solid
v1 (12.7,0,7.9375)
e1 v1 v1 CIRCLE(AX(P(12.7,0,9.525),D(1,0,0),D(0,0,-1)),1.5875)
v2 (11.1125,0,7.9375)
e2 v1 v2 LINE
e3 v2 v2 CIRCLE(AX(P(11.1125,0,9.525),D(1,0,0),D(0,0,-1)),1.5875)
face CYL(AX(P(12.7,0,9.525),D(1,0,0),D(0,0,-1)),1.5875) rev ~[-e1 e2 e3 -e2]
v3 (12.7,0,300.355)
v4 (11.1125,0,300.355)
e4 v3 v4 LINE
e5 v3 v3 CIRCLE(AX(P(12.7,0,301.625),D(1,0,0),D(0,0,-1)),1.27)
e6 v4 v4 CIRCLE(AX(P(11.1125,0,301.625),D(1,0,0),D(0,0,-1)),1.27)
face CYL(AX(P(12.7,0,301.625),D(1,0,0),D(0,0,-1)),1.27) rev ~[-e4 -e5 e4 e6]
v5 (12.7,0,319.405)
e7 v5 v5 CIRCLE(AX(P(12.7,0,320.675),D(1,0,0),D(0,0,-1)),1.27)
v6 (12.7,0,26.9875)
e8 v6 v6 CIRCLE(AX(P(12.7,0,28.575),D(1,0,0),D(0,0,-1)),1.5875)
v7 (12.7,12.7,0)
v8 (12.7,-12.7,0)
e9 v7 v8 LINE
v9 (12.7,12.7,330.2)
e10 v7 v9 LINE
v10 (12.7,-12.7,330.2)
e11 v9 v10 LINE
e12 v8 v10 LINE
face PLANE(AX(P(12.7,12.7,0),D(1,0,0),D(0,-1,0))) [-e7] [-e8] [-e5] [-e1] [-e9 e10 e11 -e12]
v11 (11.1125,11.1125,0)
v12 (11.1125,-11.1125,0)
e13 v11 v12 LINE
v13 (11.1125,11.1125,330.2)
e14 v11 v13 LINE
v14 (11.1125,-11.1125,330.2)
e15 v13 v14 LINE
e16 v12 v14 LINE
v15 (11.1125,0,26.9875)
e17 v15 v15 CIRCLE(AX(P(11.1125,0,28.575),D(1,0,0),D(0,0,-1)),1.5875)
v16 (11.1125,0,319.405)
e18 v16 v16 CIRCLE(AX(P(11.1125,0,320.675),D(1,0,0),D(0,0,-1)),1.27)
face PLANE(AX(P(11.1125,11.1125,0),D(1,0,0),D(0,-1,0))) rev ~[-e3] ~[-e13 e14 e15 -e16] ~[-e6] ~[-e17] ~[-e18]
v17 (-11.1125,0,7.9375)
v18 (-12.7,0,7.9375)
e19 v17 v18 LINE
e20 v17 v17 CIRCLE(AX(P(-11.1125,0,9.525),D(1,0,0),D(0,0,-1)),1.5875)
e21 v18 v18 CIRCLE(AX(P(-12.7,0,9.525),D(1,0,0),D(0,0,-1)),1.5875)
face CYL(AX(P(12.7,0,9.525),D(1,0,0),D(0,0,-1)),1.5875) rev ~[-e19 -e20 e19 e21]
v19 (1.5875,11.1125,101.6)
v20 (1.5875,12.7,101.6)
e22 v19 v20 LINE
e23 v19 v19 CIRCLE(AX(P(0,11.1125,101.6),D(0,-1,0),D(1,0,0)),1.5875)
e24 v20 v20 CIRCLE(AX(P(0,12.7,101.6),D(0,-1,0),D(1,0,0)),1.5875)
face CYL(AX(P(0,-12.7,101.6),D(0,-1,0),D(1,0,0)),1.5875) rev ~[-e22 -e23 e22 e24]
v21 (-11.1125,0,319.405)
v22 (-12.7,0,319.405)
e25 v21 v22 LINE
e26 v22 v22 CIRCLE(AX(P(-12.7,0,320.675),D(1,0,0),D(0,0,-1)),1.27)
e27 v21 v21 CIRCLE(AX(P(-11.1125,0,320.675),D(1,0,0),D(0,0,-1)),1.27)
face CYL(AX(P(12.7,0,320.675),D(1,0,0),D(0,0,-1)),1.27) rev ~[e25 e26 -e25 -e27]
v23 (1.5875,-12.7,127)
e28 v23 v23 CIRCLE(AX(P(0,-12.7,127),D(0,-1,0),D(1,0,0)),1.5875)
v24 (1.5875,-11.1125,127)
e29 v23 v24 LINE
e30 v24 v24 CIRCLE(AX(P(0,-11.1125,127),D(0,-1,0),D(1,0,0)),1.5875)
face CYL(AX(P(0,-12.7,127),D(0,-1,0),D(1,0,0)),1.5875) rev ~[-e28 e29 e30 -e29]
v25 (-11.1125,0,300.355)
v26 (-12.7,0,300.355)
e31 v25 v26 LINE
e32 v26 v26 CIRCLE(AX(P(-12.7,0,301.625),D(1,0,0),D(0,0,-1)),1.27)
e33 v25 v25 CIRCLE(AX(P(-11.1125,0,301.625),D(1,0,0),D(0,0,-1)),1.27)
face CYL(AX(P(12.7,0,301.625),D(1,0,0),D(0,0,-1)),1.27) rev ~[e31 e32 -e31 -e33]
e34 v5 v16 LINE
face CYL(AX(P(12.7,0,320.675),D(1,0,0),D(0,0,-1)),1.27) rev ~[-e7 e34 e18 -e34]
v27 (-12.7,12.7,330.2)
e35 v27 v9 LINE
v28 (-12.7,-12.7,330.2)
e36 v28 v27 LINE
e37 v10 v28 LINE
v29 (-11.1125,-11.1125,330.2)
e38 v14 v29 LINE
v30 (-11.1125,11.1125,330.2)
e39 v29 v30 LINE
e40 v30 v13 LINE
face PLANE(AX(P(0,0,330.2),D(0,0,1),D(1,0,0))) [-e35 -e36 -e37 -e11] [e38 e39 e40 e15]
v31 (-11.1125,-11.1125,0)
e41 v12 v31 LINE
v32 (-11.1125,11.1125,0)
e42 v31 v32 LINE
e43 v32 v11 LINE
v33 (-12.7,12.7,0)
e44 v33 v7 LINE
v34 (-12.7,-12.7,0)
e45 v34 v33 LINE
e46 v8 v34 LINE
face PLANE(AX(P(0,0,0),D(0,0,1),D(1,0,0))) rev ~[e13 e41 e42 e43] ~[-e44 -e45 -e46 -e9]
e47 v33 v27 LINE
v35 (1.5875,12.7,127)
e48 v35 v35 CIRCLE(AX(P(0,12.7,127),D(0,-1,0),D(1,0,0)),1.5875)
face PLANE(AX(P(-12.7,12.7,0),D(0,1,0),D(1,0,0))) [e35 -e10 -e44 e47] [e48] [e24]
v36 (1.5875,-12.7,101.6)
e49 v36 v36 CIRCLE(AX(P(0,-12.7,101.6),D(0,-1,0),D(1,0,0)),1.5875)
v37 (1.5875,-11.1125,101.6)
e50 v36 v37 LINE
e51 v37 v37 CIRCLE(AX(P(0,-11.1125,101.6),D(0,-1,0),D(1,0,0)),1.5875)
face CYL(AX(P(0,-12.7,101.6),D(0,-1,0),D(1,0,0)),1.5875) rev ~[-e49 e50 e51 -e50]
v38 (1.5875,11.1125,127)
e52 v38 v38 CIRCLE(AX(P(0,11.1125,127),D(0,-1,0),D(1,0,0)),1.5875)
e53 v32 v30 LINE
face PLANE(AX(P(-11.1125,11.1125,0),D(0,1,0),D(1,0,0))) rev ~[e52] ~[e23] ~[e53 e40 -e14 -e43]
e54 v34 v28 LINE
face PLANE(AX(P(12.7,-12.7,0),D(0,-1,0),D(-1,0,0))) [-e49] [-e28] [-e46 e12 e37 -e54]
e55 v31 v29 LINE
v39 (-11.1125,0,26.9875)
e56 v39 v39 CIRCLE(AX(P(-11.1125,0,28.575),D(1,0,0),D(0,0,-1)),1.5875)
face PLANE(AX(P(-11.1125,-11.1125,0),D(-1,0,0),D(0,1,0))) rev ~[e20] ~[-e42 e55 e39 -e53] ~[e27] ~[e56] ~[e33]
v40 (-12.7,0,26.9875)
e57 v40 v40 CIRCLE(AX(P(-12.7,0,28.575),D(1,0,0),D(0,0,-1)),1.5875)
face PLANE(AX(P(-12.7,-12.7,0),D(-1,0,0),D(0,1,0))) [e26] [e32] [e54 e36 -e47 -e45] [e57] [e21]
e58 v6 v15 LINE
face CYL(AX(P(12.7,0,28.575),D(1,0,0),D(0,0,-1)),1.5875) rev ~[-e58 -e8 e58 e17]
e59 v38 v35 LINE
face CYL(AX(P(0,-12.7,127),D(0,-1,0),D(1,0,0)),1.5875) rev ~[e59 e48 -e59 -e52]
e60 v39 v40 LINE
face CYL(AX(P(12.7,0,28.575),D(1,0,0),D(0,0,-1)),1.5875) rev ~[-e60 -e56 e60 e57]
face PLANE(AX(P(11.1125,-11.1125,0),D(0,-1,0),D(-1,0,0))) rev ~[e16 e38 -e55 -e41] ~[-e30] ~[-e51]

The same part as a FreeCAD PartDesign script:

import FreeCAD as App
import Part
import Sketcher
Q = App.Units.Quantity

doc = App.newDocument("Part")
body = doc.addObject("PartDesign::Body", "Body")

# Sketch on XY plane
sketch1 = body.newObject("Sketcher::SketchObject", "Sketch")
sketch1.AttachmentSupport = (doc.getObject("XY_Plane"), [""])
sketch1.MapMode = "FlatFace"
sketch1.addGeometry([
    Part.LineSegment(App.Vector(12.7, 12.7, 0), App.Vector(-12.7, 12.7, 0)),  # 0
    Part.LineSegment(App.Vector(-12.7, 12.7, 0), App.Vector(-12.7, -12.7, 0)),  # 1
    Part.LineSegment(App.Vector(-12.7, -12.7, 0), App.Vector(12.7, -12.7, 0)),  # 2
    Part.LineSegment(App.Vector(12.7, -12.7, 0), App.Vector(12.7, 12.7, 0)),  # 3
    Part.LineSegment(App.Vector(-11.1125, -11.1125, 0), App.Vector(-11.1125, 11.1125, 0)),  # 4
    Part.LineSegment(App.Vector(-11.1125, 11.1125, 0), App.Vector(11.1125, 11.1125, 0)),  # 5
    Part.LineSegment(App.Vector(11.1125, 11.1125, 0), App.Vector(11.1125, -11.1125, 0)),  # 6
    Part.LineSegment(App.Vector(11.1125, -11.1125, 0), App.Vector(-11.1125, -11.1125, 0)),  # 7
], False)
sketch1.addConstraint([
    Sketcher.Constraint("Coincident", 0, 2, 1, 1),
    Sketcher.Constraint("Coincident", 1, 2, 2, 1),
    Sketcher.Constraint("Coincident", 2, 2, 3, 1),
    Sketcher.Constraint("Coincident", 3, 2, 0, 1),
    Sketcher.Constraint("Coincident", 4, 2, 5, 1),
    Sketcher.Constraint("Coincident", 5, 2, 6, 1),
    Sketcher.Constraint("Coincident", 6, 2, 7, 1),
    Sketcher.Constraint("Coincident", 7, 2, 4, 1),
    Sketcher.Constraint("Horizontal", 0),
    Sketcher.Constraint("Vertical", 1),
    Sketcher.Constraint("Horizontal", 2),
    Sketcher.Constraint("Vertical", 3),
    Sketcher.Constraint("Vertical", 4),
    Sketcher.Constraint("Horizontal", 5),
    Sketcher.Constraint("Vertical", 6),
    Sketcher.Constraint("Horizontal", 7),
    Sketcher.Constraint("Symmetric", 0, 2, 2, 2, -1, 1),
    Sketcher.Constraint("Symmetric", 4, 2, 6, 2, -1, 1),
    Sketcher.Constraint("Equal", 2, 1),
    Sketcher.Constraint("Equal", 7, 4),
    Sketcher.Constraint("DistanceX", 0, 2, 0, 1, Q("1 in")),
    Sketcher.Constraint("DistanceX", 0, 2, 4, 2, Q("0.0625 in")),
])
pad1 = body.newObject("PartDesign::Pad", "Pad")
pad1.Profile = sketch1
pad1.Length = Q("13 in")

# Sketch on YZ plane
sketch2 = body.newObject("Sketcher::SketchObject", "Sketch001")
sketch2.AttachmentSupport = (doc.getObject("YZ_Plane"), [""])
sketch2.MapMode = "FlatFace"
sketch2.AttachmentOffset = App.Placement(App.Vector(0, 0, 0.5 * 25.4), App.Rotation())
sketch2.addGeometry([
    Part.Circle(App.Vector(0, 320.675, 0), App.Vector(0, 0, 1), 1.27),
    Part.Circle(App.Vector(0, 301.625, 0), App.Vector(0, 0, 1), 1.27),
    Part.Circle(App.Vector(0, 9.525, 0), App.Vector(0, 0, 1), 1.5875),
    Part.Circle(App.Vector(0, 28.575, 0), App.Vector(0, 0, 1), 1.5875),
], False)
sketch2.addConstraint([
    Sketcher.Constraint("Equal", 0, 1),
    Sketcher.Constraint("Equal", 2, 3),
    Sketcher.Constraint("PointOnObject", 0, 3, -2),
    Sketcher.Constraint("PointOnObject", 1, 3, -2),
    Sketcher.Constraint("PointOnObject", 2, 3, -2),
    Sketcher.Constraint("PointOnObject", 3, 3, -2),
    Sketcher.Constraint("Diameter", 0, Q("0.1 in")),
    Sketcher.Constraint("Diameter", 2, Q("0.125 in")),
    Sketcher.Constraint("DistanceY", 1, 3, 0, 3, Q("0.75 in")),
    Sketcher.Constraint("DistanceY", 2, 3, 3, 3, Q("0.75 in")),
    Sketcher.Constraint("DistanceY", -1, 1, 2, 3, Q("0.375 in")),
    Sketcher.Constraint("DistanceY", 2, 3, 1, 3, Q("11.5 in")),
])
pocket1 = body.newObject("PartDesign::Pocket", "Pocket")
pocket1.Profile = sketch2
pocket1.Type = "ThroughAll"

# Sketch on XZ plane
sketch3 = body.newObject("Sketcher::SketchObject", "Sketch002")
sketch3.AttachmentSupport = (doc.getObject("XZ_Plane"), [""])
sketch3.MapMode = "FlatFace"
sketch3.AttachmentOffset = App.Placement(App.Vector(0, 0, 0.5 * 25.4), App.Rotation())
sketch3.addGeometry([
    Part.Circle(App.Vector(0, 127, 0), App.Vector(0, 0, 1), 1.5875),
    Part.Circle(App.Vector(0, 101.6, 0), App.Vector(0, 0, 1), 1.5875),
], False)
sketch3.addConstraint([
    Sketcher.Constraint("Equal", 0, 1),
    Sketcher.Constraint("PointOnObject", 0, 3, -2),
    Sketcher.Constraint("PointOnObject", 1, 3, -2),
    Sketcher.Constraint("Diameter", 0, Q("0.125 in")),
    Sketcher.Constraint("DistanceY", 1, 3, 0, 3, Q("1 in")),
    Sketcher.Constraint("DistanceY", -1, 1, 0, 3, Q("5 in")),
])
pocket2 = body.newObject("PartDesign::Pocket", "Pocket001")
pocket2.Profile = sketch3
pocket2.Type = "ThroughAll"

doc.recompute()
